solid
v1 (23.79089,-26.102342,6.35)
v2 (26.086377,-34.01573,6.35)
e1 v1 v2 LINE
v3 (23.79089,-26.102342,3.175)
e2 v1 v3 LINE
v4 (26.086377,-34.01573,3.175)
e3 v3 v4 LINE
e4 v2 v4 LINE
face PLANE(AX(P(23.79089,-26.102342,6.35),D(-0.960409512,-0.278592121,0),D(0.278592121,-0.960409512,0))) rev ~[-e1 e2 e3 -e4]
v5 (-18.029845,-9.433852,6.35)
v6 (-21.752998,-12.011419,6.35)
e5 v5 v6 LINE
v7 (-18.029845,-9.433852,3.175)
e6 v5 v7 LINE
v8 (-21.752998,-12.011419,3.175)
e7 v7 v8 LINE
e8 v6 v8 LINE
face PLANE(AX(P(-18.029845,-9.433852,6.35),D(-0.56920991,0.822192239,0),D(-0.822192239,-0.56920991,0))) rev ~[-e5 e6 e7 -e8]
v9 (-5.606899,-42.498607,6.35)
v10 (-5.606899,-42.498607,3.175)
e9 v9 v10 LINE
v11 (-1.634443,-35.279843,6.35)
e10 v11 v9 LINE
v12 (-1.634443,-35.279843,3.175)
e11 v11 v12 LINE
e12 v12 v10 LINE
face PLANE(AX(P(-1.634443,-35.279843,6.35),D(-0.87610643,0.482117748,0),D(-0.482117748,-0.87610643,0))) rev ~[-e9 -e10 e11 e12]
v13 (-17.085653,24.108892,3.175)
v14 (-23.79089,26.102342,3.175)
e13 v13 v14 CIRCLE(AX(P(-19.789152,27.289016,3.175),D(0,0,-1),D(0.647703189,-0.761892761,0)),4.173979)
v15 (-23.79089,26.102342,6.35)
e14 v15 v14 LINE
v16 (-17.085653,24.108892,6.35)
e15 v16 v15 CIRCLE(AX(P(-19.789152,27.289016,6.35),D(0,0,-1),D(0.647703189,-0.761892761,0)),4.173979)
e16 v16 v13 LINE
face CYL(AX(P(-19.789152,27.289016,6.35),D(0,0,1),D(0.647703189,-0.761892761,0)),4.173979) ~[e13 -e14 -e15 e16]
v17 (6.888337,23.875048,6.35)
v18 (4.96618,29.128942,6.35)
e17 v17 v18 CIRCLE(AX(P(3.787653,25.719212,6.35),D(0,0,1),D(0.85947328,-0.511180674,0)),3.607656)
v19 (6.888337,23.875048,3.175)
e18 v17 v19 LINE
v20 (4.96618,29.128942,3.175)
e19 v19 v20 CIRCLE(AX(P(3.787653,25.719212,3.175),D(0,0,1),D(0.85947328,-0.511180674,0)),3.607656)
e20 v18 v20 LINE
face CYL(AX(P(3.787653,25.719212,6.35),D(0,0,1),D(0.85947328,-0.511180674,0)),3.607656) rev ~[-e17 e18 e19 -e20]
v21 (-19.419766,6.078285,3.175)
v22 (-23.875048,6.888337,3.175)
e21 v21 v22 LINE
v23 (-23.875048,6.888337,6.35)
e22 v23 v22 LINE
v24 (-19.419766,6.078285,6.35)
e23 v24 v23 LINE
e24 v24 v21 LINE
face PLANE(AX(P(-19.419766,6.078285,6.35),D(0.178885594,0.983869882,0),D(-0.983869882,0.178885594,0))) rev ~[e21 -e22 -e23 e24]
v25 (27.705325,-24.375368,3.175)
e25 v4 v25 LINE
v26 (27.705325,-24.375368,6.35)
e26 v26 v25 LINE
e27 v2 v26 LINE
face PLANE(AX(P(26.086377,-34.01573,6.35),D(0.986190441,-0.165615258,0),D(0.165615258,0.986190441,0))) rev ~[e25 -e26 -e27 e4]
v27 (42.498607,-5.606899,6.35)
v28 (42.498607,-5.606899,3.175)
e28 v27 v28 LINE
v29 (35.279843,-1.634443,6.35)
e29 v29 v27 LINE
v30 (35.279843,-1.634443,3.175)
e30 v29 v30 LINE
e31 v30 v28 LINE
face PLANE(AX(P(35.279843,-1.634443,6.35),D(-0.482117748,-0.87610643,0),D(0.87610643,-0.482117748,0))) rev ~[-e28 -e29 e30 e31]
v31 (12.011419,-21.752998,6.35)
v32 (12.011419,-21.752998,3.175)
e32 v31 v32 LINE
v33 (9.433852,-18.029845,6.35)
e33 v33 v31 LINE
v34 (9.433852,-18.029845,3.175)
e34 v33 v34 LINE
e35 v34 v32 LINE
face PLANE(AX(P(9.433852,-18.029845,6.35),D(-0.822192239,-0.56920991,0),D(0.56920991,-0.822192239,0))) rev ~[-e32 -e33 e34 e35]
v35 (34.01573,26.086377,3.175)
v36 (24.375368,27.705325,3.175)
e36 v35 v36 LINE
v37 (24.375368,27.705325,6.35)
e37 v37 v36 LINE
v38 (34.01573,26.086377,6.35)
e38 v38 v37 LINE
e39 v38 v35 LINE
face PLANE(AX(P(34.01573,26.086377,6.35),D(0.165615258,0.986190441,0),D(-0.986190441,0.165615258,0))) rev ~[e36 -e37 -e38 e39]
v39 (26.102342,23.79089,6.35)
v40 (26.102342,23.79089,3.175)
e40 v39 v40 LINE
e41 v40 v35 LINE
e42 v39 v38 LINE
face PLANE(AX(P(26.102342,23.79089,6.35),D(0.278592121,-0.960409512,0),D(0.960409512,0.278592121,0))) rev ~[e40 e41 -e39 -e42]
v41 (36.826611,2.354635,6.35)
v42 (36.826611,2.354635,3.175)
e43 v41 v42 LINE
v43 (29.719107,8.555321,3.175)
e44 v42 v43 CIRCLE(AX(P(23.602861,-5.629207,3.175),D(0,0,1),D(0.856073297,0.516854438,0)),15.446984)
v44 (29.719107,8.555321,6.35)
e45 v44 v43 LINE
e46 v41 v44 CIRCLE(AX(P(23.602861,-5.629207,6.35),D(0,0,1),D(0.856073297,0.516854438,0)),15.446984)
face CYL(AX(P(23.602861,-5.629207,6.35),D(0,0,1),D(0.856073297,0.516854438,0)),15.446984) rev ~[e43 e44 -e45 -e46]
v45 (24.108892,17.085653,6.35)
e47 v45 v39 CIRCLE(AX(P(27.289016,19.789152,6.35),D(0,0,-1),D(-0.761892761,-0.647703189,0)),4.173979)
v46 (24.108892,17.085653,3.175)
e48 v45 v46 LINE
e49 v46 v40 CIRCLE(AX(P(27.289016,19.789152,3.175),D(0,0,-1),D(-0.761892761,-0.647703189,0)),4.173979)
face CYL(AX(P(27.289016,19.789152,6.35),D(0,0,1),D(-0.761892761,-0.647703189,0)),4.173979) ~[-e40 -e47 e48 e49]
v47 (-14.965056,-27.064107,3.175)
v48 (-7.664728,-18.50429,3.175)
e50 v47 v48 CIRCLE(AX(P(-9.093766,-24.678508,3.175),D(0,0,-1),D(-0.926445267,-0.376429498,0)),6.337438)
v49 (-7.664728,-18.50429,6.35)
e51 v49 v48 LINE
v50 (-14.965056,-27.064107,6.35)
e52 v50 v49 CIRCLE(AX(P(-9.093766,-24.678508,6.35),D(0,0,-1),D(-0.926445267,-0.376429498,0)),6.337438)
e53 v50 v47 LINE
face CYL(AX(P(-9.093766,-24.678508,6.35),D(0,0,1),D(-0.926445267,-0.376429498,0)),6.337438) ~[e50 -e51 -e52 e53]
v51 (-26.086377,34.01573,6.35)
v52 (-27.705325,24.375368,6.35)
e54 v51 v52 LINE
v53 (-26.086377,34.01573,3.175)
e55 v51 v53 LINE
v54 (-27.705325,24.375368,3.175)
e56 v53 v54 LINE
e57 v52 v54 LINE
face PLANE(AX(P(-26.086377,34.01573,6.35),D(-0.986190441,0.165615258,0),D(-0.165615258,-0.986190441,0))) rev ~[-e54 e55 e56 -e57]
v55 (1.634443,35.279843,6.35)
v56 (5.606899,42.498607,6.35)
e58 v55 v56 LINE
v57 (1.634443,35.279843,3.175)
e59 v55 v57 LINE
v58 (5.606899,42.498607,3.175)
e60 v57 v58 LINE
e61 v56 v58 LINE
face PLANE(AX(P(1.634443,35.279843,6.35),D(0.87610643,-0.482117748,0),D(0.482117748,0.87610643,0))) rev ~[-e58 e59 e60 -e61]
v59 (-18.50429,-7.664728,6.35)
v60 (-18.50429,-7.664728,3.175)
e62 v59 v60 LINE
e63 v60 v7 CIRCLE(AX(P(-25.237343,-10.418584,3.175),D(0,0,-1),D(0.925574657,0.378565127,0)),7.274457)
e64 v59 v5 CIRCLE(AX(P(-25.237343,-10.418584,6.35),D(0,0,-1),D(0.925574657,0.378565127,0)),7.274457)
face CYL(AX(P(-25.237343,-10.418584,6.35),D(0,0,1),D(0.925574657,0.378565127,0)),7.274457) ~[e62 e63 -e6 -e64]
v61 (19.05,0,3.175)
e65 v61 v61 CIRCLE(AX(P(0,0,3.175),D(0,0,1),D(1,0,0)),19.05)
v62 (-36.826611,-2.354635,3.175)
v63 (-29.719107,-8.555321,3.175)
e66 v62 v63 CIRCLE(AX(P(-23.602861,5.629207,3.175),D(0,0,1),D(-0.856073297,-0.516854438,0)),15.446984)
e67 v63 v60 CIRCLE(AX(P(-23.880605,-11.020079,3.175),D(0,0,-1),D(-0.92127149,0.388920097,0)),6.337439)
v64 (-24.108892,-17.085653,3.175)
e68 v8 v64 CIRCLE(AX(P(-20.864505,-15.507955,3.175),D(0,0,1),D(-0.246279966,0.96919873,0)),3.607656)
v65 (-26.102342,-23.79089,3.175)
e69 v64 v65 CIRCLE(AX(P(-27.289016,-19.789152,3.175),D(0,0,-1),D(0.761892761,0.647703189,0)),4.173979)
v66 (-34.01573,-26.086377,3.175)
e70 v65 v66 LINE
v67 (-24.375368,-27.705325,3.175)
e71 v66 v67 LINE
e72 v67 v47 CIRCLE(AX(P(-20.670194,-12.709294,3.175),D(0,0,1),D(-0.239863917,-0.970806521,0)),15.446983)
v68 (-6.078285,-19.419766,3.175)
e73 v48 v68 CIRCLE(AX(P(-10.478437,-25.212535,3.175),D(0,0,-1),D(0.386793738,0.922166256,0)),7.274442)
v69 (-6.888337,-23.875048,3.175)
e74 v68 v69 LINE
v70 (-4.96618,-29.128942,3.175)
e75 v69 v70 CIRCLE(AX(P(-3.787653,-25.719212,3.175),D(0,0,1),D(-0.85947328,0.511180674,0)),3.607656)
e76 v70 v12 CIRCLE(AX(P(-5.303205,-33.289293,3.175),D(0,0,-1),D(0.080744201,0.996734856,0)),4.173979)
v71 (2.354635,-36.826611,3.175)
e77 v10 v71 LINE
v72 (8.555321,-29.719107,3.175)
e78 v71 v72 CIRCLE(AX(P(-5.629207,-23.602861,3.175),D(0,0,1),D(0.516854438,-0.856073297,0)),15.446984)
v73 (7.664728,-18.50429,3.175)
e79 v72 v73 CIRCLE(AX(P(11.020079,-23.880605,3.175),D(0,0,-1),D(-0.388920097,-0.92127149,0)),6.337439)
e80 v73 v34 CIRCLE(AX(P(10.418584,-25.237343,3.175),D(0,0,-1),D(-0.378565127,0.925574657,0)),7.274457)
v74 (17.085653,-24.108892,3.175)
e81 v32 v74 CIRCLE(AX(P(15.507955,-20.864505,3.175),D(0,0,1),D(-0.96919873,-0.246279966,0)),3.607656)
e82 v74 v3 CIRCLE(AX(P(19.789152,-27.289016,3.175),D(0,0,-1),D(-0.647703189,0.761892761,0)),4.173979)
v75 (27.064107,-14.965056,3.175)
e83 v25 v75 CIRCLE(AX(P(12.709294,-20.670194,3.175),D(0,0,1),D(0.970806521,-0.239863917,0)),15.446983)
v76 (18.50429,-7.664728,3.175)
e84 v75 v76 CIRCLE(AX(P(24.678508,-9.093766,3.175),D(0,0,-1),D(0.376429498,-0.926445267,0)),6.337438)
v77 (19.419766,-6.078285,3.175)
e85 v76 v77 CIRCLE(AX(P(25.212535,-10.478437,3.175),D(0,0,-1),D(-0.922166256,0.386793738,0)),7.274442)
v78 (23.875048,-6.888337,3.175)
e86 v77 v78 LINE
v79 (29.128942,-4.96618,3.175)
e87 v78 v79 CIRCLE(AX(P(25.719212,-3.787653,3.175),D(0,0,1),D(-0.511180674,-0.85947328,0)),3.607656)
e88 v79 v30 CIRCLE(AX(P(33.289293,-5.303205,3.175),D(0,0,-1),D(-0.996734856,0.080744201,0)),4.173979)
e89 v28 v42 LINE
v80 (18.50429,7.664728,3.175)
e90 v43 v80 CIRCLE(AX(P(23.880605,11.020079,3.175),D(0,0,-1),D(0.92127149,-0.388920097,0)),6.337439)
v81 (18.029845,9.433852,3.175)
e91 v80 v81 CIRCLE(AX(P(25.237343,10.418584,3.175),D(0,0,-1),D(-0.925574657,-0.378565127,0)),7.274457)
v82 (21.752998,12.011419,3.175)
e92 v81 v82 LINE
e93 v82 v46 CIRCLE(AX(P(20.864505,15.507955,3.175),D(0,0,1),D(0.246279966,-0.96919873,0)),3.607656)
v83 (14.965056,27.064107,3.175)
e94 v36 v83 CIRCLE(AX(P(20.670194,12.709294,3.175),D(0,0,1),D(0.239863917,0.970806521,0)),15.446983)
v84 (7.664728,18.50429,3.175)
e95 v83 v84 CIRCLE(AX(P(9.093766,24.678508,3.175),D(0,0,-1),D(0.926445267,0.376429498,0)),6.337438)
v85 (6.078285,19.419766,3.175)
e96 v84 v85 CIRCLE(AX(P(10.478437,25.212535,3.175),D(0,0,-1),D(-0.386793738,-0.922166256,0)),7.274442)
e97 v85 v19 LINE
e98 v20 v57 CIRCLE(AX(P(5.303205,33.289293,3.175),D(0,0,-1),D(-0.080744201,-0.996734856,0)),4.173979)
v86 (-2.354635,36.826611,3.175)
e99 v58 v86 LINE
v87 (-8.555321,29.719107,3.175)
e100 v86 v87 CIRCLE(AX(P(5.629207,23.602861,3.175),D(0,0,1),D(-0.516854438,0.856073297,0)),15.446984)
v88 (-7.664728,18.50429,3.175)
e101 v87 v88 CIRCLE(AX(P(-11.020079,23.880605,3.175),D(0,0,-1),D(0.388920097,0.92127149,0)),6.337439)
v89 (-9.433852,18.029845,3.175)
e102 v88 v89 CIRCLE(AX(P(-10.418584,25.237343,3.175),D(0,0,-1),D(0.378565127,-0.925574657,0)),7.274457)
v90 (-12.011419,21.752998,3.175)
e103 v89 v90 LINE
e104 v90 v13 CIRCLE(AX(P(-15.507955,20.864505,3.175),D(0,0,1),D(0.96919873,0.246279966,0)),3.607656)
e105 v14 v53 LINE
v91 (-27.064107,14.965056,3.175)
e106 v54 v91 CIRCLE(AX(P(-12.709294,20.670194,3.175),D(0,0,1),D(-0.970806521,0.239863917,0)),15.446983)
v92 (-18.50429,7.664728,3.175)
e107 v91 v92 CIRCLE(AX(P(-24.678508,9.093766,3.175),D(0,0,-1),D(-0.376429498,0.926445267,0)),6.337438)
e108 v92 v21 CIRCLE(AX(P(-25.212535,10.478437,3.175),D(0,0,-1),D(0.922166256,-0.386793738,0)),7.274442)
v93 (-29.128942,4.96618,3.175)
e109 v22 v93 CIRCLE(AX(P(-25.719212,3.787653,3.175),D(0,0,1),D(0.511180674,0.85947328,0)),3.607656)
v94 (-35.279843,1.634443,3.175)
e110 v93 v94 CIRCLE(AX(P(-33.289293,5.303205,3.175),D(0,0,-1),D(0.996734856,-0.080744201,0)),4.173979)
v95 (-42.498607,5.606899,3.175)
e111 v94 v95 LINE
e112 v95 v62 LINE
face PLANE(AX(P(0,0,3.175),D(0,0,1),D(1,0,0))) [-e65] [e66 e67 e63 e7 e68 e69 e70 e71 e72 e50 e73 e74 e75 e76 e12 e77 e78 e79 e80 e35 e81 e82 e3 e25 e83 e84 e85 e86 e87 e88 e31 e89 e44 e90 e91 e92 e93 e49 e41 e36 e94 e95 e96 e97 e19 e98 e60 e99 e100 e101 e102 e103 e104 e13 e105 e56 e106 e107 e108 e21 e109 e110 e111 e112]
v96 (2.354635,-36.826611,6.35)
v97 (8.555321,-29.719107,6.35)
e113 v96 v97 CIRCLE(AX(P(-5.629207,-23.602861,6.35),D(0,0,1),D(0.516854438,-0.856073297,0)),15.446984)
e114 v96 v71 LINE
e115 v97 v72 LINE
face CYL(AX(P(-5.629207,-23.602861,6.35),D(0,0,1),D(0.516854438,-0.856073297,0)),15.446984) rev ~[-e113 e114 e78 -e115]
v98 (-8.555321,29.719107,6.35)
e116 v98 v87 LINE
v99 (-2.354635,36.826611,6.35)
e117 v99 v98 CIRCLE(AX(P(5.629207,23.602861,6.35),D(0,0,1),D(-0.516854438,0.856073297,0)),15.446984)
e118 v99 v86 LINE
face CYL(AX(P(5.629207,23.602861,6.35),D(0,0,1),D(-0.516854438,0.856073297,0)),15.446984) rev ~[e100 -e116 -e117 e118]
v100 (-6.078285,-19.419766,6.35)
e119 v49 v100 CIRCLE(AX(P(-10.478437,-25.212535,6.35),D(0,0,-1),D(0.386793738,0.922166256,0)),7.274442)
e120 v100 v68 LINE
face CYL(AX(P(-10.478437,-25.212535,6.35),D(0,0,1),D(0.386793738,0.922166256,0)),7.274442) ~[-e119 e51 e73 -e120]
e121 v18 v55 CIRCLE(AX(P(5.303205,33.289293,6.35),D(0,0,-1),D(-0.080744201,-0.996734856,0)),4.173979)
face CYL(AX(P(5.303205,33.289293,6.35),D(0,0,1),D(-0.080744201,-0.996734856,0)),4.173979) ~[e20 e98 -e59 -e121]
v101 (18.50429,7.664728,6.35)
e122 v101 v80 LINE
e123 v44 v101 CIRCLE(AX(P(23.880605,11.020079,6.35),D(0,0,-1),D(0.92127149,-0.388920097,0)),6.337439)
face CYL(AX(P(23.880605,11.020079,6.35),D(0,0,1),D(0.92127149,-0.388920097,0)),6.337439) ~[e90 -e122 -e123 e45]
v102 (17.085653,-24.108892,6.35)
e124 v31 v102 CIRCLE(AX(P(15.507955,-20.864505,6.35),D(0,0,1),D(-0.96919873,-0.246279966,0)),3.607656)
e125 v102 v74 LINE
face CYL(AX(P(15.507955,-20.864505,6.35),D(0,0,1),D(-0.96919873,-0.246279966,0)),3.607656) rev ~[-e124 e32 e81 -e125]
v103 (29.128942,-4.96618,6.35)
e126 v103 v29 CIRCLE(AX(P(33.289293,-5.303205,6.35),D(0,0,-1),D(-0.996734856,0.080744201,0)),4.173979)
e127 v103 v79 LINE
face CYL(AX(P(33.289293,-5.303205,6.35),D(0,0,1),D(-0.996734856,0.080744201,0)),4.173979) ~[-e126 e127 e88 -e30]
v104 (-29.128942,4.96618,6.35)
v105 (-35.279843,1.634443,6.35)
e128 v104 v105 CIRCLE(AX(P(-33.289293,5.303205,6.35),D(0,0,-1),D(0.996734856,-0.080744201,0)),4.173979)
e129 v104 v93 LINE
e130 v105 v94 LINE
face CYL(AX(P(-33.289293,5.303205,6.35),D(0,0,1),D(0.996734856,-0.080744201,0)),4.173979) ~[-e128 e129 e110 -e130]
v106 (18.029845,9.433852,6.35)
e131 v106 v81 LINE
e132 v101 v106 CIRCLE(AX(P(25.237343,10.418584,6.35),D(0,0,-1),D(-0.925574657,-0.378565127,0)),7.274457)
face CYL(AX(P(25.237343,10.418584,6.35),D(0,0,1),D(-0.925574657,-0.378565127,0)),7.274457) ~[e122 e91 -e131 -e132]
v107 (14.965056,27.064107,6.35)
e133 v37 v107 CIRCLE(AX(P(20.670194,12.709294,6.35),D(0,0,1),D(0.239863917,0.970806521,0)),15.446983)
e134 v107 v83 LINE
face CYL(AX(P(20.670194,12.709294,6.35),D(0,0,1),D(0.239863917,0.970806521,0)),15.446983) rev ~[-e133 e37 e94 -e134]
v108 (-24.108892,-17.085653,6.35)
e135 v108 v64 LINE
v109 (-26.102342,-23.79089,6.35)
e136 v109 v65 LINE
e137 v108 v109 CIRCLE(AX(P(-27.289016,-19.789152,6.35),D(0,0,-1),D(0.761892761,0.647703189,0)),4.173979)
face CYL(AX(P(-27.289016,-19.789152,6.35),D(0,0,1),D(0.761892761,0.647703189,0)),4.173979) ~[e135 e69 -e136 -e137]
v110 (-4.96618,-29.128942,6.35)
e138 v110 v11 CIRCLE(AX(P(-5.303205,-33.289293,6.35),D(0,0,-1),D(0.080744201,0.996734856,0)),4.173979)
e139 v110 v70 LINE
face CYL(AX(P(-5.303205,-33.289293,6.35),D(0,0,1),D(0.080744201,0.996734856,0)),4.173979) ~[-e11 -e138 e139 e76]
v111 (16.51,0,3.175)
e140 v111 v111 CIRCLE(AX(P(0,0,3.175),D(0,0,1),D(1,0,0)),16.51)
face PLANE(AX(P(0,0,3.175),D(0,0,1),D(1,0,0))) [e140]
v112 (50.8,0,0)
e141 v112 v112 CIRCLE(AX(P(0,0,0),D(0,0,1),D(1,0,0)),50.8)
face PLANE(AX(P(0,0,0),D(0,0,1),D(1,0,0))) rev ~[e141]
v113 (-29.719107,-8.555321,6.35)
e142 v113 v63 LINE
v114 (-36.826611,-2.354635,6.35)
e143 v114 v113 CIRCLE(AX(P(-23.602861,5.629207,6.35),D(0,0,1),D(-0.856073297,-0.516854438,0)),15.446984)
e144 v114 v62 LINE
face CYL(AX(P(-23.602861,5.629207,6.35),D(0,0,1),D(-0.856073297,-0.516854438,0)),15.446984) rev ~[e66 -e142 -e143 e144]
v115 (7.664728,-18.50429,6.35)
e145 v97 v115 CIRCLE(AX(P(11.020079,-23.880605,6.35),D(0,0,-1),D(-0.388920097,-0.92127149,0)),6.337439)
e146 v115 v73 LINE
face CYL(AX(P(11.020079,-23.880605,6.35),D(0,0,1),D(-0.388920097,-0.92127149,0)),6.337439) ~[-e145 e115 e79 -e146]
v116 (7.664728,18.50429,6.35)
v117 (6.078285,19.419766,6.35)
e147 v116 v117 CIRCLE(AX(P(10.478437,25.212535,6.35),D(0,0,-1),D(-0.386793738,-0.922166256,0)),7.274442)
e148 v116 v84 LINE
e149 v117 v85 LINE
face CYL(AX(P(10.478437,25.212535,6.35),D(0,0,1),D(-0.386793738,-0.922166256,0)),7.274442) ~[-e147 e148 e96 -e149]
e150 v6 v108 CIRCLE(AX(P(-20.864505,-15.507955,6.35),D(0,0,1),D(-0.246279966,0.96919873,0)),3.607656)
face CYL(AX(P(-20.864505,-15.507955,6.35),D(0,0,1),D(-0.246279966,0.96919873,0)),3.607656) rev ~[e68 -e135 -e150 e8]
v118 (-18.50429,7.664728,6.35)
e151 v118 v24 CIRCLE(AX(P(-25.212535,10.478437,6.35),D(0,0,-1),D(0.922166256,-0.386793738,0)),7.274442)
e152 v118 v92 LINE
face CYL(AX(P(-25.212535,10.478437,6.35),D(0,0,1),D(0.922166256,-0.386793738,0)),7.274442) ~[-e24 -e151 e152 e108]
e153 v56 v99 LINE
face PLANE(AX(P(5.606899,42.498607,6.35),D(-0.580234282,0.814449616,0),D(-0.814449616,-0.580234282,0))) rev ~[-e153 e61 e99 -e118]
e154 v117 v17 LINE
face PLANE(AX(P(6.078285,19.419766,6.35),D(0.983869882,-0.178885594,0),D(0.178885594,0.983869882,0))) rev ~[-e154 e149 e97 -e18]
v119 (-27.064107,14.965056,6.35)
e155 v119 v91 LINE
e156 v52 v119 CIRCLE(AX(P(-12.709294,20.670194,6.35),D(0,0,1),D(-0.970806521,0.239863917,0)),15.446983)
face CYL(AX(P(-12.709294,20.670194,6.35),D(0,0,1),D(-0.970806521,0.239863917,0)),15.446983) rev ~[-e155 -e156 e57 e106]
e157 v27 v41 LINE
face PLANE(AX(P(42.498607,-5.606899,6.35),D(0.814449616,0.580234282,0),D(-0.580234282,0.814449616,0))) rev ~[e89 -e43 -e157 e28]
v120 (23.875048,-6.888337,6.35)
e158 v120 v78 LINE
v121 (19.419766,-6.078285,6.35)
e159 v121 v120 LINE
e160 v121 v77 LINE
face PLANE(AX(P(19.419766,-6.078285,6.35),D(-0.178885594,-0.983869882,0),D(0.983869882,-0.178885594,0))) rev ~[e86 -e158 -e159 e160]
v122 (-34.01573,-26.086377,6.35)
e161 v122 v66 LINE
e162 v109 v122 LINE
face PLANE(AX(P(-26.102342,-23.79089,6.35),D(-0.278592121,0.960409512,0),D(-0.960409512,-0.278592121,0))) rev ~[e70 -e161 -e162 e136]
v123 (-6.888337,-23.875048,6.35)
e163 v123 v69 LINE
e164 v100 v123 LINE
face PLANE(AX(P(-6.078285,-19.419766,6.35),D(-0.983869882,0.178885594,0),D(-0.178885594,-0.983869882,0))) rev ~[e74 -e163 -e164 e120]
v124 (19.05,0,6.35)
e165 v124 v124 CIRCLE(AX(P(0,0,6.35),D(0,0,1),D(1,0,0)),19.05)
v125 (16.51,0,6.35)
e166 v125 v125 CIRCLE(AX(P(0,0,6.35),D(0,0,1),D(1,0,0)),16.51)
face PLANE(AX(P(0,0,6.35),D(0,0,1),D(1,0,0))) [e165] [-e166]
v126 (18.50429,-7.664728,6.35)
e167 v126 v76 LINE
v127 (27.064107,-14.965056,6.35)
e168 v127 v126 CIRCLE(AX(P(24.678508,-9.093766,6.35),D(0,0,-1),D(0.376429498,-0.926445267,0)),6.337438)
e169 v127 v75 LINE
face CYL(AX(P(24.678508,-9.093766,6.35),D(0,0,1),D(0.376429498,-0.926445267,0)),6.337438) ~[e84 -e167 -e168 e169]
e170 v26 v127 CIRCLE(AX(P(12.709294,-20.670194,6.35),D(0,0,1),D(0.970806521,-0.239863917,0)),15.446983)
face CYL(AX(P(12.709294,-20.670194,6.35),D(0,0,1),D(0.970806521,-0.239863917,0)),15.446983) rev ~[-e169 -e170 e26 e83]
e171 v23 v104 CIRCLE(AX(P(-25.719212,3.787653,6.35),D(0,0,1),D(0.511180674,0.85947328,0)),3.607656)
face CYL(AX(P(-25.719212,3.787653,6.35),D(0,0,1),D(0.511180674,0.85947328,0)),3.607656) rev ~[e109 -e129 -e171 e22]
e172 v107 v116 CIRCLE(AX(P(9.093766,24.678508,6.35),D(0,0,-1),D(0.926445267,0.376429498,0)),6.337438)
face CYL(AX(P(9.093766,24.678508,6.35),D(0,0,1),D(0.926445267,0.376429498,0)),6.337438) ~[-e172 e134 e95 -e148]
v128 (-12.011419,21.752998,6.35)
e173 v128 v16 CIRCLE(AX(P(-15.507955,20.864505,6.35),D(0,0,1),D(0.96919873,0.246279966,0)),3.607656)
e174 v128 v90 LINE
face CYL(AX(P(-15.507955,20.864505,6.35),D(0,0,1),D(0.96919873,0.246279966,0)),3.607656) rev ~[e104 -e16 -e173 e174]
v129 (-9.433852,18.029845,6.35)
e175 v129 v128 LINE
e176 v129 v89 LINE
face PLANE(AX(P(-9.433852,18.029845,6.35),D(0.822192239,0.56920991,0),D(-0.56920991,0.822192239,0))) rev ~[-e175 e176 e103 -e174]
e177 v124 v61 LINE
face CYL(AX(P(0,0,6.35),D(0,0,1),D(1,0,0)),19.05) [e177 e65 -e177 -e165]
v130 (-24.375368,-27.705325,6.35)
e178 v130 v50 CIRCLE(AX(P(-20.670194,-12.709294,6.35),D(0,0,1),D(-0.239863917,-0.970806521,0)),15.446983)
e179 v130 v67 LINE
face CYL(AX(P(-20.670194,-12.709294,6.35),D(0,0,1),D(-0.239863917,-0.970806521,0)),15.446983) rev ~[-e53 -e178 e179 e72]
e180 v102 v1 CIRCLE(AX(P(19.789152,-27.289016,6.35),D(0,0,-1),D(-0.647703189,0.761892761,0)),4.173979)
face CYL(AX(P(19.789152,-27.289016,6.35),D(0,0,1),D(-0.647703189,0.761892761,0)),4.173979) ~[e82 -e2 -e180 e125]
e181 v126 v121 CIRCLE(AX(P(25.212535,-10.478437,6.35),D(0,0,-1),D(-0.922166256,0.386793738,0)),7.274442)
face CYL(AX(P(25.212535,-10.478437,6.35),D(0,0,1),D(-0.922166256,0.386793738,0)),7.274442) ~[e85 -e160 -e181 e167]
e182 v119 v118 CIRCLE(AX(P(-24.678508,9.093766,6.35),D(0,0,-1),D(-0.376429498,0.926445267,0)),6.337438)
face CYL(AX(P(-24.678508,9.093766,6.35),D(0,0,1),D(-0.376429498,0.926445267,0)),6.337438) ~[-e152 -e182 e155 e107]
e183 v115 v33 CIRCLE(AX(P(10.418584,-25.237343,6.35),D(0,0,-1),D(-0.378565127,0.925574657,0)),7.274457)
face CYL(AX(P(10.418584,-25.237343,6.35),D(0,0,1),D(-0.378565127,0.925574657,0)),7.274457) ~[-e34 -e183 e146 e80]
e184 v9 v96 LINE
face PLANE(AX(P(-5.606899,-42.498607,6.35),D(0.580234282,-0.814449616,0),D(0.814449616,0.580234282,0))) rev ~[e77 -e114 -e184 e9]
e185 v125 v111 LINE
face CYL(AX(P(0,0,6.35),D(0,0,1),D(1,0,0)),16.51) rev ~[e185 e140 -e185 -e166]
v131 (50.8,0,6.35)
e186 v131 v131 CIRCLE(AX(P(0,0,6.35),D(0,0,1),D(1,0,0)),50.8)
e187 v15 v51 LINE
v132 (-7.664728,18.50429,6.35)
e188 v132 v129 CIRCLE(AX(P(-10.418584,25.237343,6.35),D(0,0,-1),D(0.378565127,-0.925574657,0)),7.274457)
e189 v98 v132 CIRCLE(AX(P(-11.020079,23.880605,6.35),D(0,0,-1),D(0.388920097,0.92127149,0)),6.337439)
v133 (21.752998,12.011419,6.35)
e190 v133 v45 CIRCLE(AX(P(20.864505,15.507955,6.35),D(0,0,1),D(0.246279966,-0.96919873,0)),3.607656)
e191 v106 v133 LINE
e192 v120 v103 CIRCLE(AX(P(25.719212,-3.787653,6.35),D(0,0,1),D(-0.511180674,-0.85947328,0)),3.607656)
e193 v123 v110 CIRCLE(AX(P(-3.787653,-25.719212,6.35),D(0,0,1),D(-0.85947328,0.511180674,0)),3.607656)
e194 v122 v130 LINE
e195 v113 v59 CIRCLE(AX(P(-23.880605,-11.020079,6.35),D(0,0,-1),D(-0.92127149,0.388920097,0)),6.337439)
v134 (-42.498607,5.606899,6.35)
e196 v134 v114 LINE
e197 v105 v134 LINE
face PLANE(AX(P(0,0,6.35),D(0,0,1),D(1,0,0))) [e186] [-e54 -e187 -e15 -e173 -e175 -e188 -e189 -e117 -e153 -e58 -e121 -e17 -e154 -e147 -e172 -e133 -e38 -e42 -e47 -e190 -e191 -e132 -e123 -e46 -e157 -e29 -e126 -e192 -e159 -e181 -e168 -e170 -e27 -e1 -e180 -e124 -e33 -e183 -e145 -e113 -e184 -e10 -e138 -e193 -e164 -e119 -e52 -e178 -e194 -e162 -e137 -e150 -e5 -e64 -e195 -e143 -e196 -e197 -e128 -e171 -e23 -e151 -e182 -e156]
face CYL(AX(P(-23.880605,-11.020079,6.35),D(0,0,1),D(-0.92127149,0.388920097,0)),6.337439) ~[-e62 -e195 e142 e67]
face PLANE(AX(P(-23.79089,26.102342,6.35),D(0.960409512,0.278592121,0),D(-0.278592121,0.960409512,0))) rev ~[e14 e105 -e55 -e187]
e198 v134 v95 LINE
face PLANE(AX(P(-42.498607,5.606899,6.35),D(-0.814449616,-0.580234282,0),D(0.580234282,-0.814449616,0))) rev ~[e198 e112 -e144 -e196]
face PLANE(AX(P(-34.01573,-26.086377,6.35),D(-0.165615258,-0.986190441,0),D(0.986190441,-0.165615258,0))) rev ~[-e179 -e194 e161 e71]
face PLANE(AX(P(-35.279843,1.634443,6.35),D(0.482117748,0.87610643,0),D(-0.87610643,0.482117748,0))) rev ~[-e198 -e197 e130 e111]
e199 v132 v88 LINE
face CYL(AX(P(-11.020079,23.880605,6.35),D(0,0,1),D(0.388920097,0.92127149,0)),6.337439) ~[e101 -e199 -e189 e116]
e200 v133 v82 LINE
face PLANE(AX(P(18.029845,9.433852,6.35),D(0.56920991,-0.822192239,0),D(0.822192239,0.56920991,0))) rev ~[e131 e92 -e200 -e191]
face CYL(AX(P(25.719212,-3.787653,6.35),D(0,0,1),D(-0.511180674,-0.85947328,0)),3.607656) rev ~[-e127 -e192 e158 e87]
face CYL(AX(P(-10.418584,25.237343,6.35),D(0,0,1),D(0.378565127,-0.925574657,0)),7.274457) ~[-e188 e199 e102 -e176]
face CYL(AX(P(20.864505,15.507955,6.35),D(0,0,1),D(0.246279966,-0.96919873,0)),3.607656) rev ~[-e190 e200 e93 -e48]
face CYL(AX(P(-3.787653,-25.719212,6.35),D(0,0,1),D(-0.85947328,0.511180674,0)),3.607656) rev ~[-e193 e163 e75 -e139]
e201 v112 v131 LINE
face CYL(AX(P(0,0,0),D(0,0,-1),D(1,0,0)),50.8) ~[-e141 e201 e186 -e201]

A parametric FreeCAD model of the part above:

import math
import FreeCAD as App
import Part
import Sketcher
Q = App.Units.Quantity

doc = App.newDocument("Part")
body = doc.addObject("PartDesign::Body", "Body")

sketch1 = body.newObject("Sketcher::SketchObject", "Sketch")
sketch1.AttachmentSupport = (doc.getObject("XY_Plane"), [""])
sketch1.MapMode = "FlatFace"
sketch1.addGeometry(Part.Circle(App.Vector(0, 0, 0), App.Vector(0, 0, 1), 50.8), False)
sketch1.addConstraint(Sketcher.Constraint("Coincident", 0, 3, -1, 1))
sketch1.addConstraint(Sketcher.Constraint("Diameter", 0, Q("4 in")))
pad1 = body.newObject("PartDesign::Pad", "Pad")
pad1.Profile = sketch1
pad1.Length = Q("0.25 in")

sketch2 = body.newObject("Sketcher::SketchObject", "Sketch001")
sketch2.AttachmentSupport = (doc.getObject("XY_Plane"), [""])
sketch2.MapMode = "FlatFace"
sketch2.AttachmentOffset = App.Placement(App.Vector(0, 0, 0.25 * 25.4), App.Rotation())
sketch2.addGeometry(Part.ArcOfCircle(Part.Circle(App.Vector(-24.678508, 9.093766, 0), App.Vector(0, 0, 1), 6.337438), math.radians(-13.031781), math.radians(112.112692)), False)
sketch2.addGeometry(Part.ArcOfCircle(Part.Circle(App.Vector(-25.212535, 10.478437, 0), App.Vector(0, 0, 1), 7.274442), math.radians(-37.220081), math.radians(-22.755143)), False)
sketch2.addGeometry(Part.LineSegment(App.Vector(-19.419766, 6.078285, 0), App.Vector(-23.875048, 6.888337, 0)), False)
sketch2.addGeometry(Part.ArcOfCircle(Part.Circle(App.Vector(-25.719212, 3.787653, 0), App.Vector(0, 0, 1), 3.607656), math.radians(59.257494), math.radians(160.932981)), False)
sketch2.addGeometry(Part.ArcOfCircle(Part.Circle(App.Vector(-33.289293, 5.303205, 0), App.Vector(0, 0, 1), 4.173979), math.radians(-118.482814), math.radians(-4.631344)), False)
sketch2.addGeometry(Part.LineSegment(App.Vector(-35.279843, 1.634443, 0), App.Vector(-42.498607, 5.606899, 0)), False)
sketch2.addGeometry(Part.LineSegment(App.Vector(-42.498607, 5.606899, 0), App.Vector(-36.826611, -2.354635, 0)), False)
sketch2.addGeometry(Part.ArcOfCircle(Part.Circle(App.Vector(-23.602861, 5.629207, 0), App.Vector(0, 0, 1), 15.446984), math.radians(-148.878511), math.radians(-113.325289)), False)
sketch2.addGeometry(Part.ArcOfCircle(Part.Circle(App.Vector(-23.880605, -11.020079, 0), App.Vector(0, 0, 1), 6.337439), math.radians(31.968229), math.radians(157.112679)), False)
sketch2.addGeometry(Part.ArcOfCircle(Part.Circle(App.Vector(-25.237343, -10.418584, 0), App.Vector(0, 0, 1), 7.274457), math.radians(7.779924), math.radians(22.244832)), False)
sketch2.addGeometry(Part.LineSegment(App.Vector(-18.029845, -9.433852, 0), App.Vector(-21.752998, -12.011419, 0)), False)
sketch2.addGeometry(Part.ArcOfCircle(Part.Circle(App.Vector(-20.864505, -15.507955, 0), App.Vector(0, 0, 1), 3.607656), math.radians(104.257488), math.radians(205.932981)), False)
sketch2.addGeometry(Part.ArcOfCircle(Part.Circle(App.Vector(-27.289016, -19.789152, 0), App.Vector(0, 0, 1), 4.173979), math.radians(-73.482816), math.radians(40.368655)), False)
sketch2.addGeometry(Part.LineSegment(App.Vector(-26.102342, -23.79089, 0), App.Vector(-34.01573, -26.086377, 0)), False)
sketch2.addGeometry(Part.LineSegment(App.Vector(-34.01573, -26.086377, 0), App.Vector(-24.375368, -27.705325, 0)), False)
sketch2.addGeometry(Part.ArcOfCircle(Part.Circle(App.Vector(-20.670194, -12.709294, 0), App.Vector(0, 0, 1), 15.446983), math.radians(-103.878509), math.radians(-68.325282)), False)
sketch2.addGeometry(Part.ArcOfCircle(Part.Circle(App.Vector(-9.093766, -24.678508, 0), App.Vector(0, 0, 1), 6.337438), math.radians(76.968219), math.radians(202.112692)), False)
sketch2.addGeometry(Part.ArcOfCircle(Part.Circle(App.Vector(-10.478437, -25.212535, 0), App.Vector(0, 0, 1), 7.274442), math.radians(52.779919), math.radians(67.244857)), False)
sketch2.addGeometry(Part.LineSegment(App.Vector(-6.078285, -19.419766, 0), App.Vector(-6.888337, -23.875048, 0)), False)
sketch2.addGeometry(Part.ArcOfCircle(Part.Circle(App.Vector(-3.787653, -25.719212, 0), App.Vector(0, 0, 1), 3.607656), math.radians(149.257494), math.radians(250.932981)), False)
sketch2.addGeometry(Part.ArcOfCircle(Part.Circle(App.Vector(-5.303205, -33.289293, 0), App.Vector(0, 0, 1), 4.173979), math.radians(-28.482814), math.radians(85.368656)), False)
sketch2.addGeometry(Part.LineSegment(App.Vector(-1.634443, -35.279843, 0), App.Vector(-5.606899, -42.498607, 0)), False)
sketch2.addGeometry(Part.LineSegment(App.Vector(-5.606899, -42.498607, 0), App.Vector(2.354635, -36.826611, 0)), False)
sketch2.addGeometry(Part.ArcOfCircle(Part.Circle(App.Vector(-5.629207, -23.602861, 0), App.Vector(0, 0, 1), 15.446984), math.radians(-58.878511), math.radians(-23.325289)), False)
sketch2.addGeometry(Part.ArcOfCircle(Part.Circle(App.Vector(11.020079, -23.880605, 0), App.Vector(0, 0, 1), 6.337439), math.radians(121.968229), math.radians(247.112679)), False)
sketch2.addGeometry(Part.ArcOfCircle(Part.Circle(App.Vector(10.418584, -25.237343, 0), App.Vector(0, 0, 1), 7.274457), math.radians(97.779924), math.radians(112.244832)), False)
sketch2.addGeometry(Part.LineSegment(App.Vector(9.433852, -18.029845, 0), App.Vector(12.011419, -21.752998, 0)), False)
sketch2.addGeometry(Part.ArcOfCircle(Part.Circle(App.Vector(15.507955, -20.864505, 0), App.Vector(0, 0, 1), 3.607656), math.radians(-165.742512), math.radians(-64.067019)), False)
sketch2.addGeometry(Part.ArcOfCircle(Part.Circle(App.Vector(19.789152, -27.289016, 0), App.Vector(0, 0, 1), 4.173979), math.radians(16.517184), math.radians(130.368655)), False)
sketch2.addGeometry(Part.LineSegment(App.Vector(23.79089, -26.102342, 0), App.Vector(26.086377, -34.01573, 0)), False)
sketch2.addGeometry(Part.LineSegment(App.Vector(26.086377, -34.01573, 0), App.Vector(27.705325, -24.375368, 0)), False)
sketch2.addGeometry(Part.ArcOfCircle(Part.Circle(App.Vector(12.709294, -20.670194, 0), App.Vector(0, 0, 1), 15.446983), math.radians(-13.878509), math.radians(21.674718)), False)
sketch2.addGeometry(Part.ArcOfCircle(Part.Circle(App.Vector(24.678508, -9.093766, 0), App.Vector(0, 0, 1), 6.337438), math.radians(166.968219), math.radians(292.112692)), False)
sketch2.addGeometry(Part.ArcOfCircle(Part.Circle(App.Vector(25.212535, -10.478437, 0), App.Vector(0, 0, 1), 7.274442), math.radians(142.779919), math.radians(157.244857)), False)
sketch2.addGeometry(Part.LineSegment(App.Vector(19.419766, -6.078285, 0), App.Vector(23.875048, -6.888337, 0)), False)
sketch2.addGeometry(Part.ArcOfCircle(Part.Circle(App.Vector(25.719212, -3.787653, 0), App.Vector(0, 0, 1), 3.607656), math.radians(-120.742506), math.radians(-19.067019)), False)
sketch2.addGeometry(Part.ArcOfCircle(Part.Circle(App.Vector(33.289293, -5.303205, 0), App.Vector(0, 0, 1), 4.173979), math.radians(61.517186), math.radians(175.368656)), False)
sketch2.addGeometry(Part.LineSegment(App.Vector(35.279843, -1.634443, 0), App.Vector(42.498607, -5.606899, 0)), False)
sketch2.addGeometry(Part.LineSegment(App.Vector(42.498607, -5.606899, 0), App.Vector(36.826611, 2.354635, 0)), False)
sketch2.addGeometry(Part.ArcOfCircle(Part.Circle(App.Vector(23.602861, -5.629207, 0), App.Vector(0, 0, 1), 15.446984), math.radians(31.121489), math.radians(66.674711)), False)
sketch2.addGeometry(Part.ArcOfCircle(Part.Circle(App.Vector(23.880605, 11.020079, 0), App.Vector(0, 0, 1), 6.337439), math.radians(-148.031771), math.radians(-22.887321)), False)
sketch2.addGeometry(Part.ArcOfCircle(Part.Circle(App.Vector(25.237343, 10.418584, 0), App.Vector(0, 0, 1), 7.274457), math.radians(-172.220076), math.radians(-157.755168)), False)
sketch2.addGeometry(Part.LineSegment(App.Vector(18.029845, 9.433852, 0), App.Vector(21.752998, 12.011419, 0)), False)
sketch2.addGeometry(Part.ArcOfCircle(Part.Circle(App.Vector(20.864505, 15.507955, 0), App.Vector(0, 0, 1), 3.607656), math.radians(-75.742512), math.radians(25.932981)), False)
sketch2.addGeometry(Part.ArcOfCircle(Part.Circle(App.Vector(27.289016, 19.789152, 0), App.Vector(0, 0, 1), 4.173979), math.radians(106.517184), math.radians(220.368655)), False)
sketch2.addGeometry(Part.LineSegment(App.Vector(26.102342, 23.79089, 0), App.Vector(34.01573, 26.086377, 0)), False)
sketch2.addGeometry(Part.LineSegment(App.Vector(34.01573, 26.086377, 0), App.Vector(24.375368, 27.705325, 0)), False)
sketch2.addGeometry(Part.ArcOfCircle(Part.Circle(App.Vector(20.670194, 12.709294, 0), App.Vector(0, 0, 1), 15.446983), math.radians(76.121491), math.radians(111.674718)), False)
sketch2.addGeometry(Part.ArcOfCircle(Part.Circle(App.Vector(9.093766, 24.678508, 0), App.Vector(0, 0, 1), 6.337438), math.radians(-103.031781), math.radians(22.112692)), False)
sketch2.addGeometry(Part.ArcOfCircle(Part.Circle(App.Vector(10.478437, 25.212535, 0), App.Vector(0, 0, 1), 7.274442), math.radians(-127.220081), math.radians(-112.755143)), False)
sketch2.addGeometry(Part.LineSegment(App.Vector(6.078285, 19.419766, 0), App.Vector(6.888337, 23.875048, 0)), False)
sketch2.addGeometry(Part.ArcOfCircle(Part.Circle(App.Vector(3.787653, 25.719212, 0), App.Vector(0, 0, 1), 3.607656), math.radians(-30.742506), math.radians(70.932981)), False)
sketch2.addGeometry(Part.ArcOfCircle(Part.Circle(App.Vector(5.303205, 33.289293, 0), App.Vector(0, 0, 1), 4.173979), math.radians(151.517186), math.radians(265.368656)), False)
sketch2.addGeometry(Part.LineSegment(App.Vector(1.634443, 35.279843, 0), App.Vector(5.606899, 42.498607, 0)), False)
sketch2.addGeometry(Part.LineSegment(App.Vector(5.606899, 42.498607, 0), App.Vector(-2.354635, 36.826611, 0)), False)
sketch2.addGeometry(Part.ArcOfCircle(Part.Circle(App.Vector(5.629207, 23.602861, 0), App.Vector(0, 0, 1), 15.446984), math.radians(121.121489), math.radians(156.674711)), False)
sketch2.addGeometry(Part.ArcOfCircle(Part.Circle(App.Vector(-11.020079, 23.880605, 0), App.Vector(0, 0, 1), 6.337439), math.radians(-58.031771), math.radians(67.112679)), False)
sketch2.addGeometry(Part.ArcOfCircle(Part.Circle(App.Vector(-10.418584, 25.237343, 0), App.Vector(0, 0, 1), 7.274457), math.radians(-82.220076), math.radians(-67.755168)), False)
sketch2.addGeometry(Part.LineSegment(App.Vector(-9.433852, 18.029845, 0), App.Vector(-12.011419, 21.752998, 0)), False)
sketch2.addGeometry(Part.ArcOfCircle(Part.Circle(App.Vector(-15.507955, 20.864505, 0), App.Vector(0, 0, 1), 3.607656), math.radians(14.257488), math.radians(115.932981)), False)
sketch2.addGeometry(Part.ArcOfCircle(Part.Circle(App.Vector(-19.789152, 27.289016, 0), App.Vector(0, 0, 1), 4.173979), math.radians(-163.482816), math.radians(-49.631345)), False)
sketch2.addGeometry(Part.LineSegment(App.Vector(-23.79089, 26.102342, 0), App.Vector(-26.086377, 34.01573, 0)), False)
sketch2.addGeometry(Part.LineSegment(App.Vector(-26.086377, 34.01573, 0), App.Vector(-27.705325, 24.375368, 0)), False)
sketch2.addGeometry(Part.ArcOfCircle(Part.Circle(App.Vector(-12.709294, 20.670194, 0), App.Vector(0, 0, 1), 15.446983), math.radians(166.121491), math.radians(201.674718)), False)
sketch2.addGeometry(Part.Circle(App.Vector(0, 0, 0), App.Vector(0, 0, 1), 19.05), False)
sketch2.addGeometry(Part.Circle(App.Vector(0, 0, 0), App.Vector(0, 0, 1), 16.51), False)
sketch2.addConstraint(Sketcher.Constraint("Coincident", 0, 1, 1, 2))
sketch2.addConstraint(Sketcher.Constraint("Coincident", 1, 1, 2, 1))
sketch2.addConstraint(Sketcher.Constraint("Coincident", 2, 2, 3, 1))
sketch2.addConstraint(Sketcher.Constraint("Coincident", 3, 2, 4, 2))
sketch2.addConstraint(Sketcher.Constraint("Coincident", 4, 1, 5, 1))
sketch2.addConstraint(Sketcher.Constraint("Coincident", 5, 2, 6, 1))
sketch2.addConstraint(Sketcher.Constraint("Coincident", 6, 2, 7, 1))
sketch2.addConstraint(Sketcher.Constraint("Coincident", 7, 2, 8, 2))
sketch2.addConstraint(Sketcher.Constraint("Coincident", 8, 1, 9, 2))
sketch2.addConstraint(Sketcher.Constraint("Coincident", 9, 1, 10, 1))
sketch2.addConstraint(Sketcher.Constraint("Coincident", 10, 2, 11, 1))
sketch2.addConstraint(Sketcher.Constraint("Coincident", 11, 2, 12, 2))
sketch2.addConstraint(Sketcher.Constraint("Coincident", 12, 1, 13, 1))
sketch2.addConstraint(Sketcher.Constraint("Coincident", 13, 2, 14, 1))
sketch2.addConstraint(Sketcher.Constraint("Coincident", 14, 2, 15, 1))
sketch2.addConstraint(Sketcher.Constraint("Coincident", 15, 2, 16, 2))
sketch2.addConstraint(Sketcher.Constraint("Coincident", 16, 1, 17, 2))
sketch2.addConstraint(Sketcher.Constraint("Coincident", 17, 1, 18, 1))
sketch2.addConstraint(Sketcher.Constraint("Coincident", 18, 2, 19, 1))
sketch2.addConstraint(Sketcher.Constraint("Coincident", 19, 2, 20, 2))
sketch2.addConstraint(Sketcher.Constraint("Coincident", 20, 1, 21, 1))
sketch2.addConstraint(Sketcher.Constraint("Coincident", 21, 2, 22, 1))
sketch2.addConstraint(Sketcher.Constraint("Coincident", 22, 2, 23, 1))
sketch2.addConstraint(Sketcher.Constraint("Coincident", 23, 2, 24, 2))
sketch2.addConstraint(Sketcher.Constraint("Coincident", 24, 1, 25, 2))
sketch2.addConstraint(Sketcher.Constraint("Coincident", 25, 1, 26, 1))
sketch2.addConstraint(Sketcher.Constraint("Coincident", 26, 2, 27, 1))
sketch2.addConstraint(Sketcher.Constraint("Coincident", 27, 2, 28, 2))
sketch2.addConstraint(Sketcher.Constraint("Coincident", 28, 1, 29, 1))
sketch2.addConstraint(Sketcher.Constraint("Coincident", 29, 2, 30, 1))
sketch2.addConstraint(Sketcher.Constraint("Coincident", 30, 2, 31, 1))
sketch2.addConstraint(Sketcher.Constraint("Coincident", 31, 2, 32, 2))
sketch2.addConstraint(Sketcher.Constraint("Coincident", 32, 1, 33, 2))
sketch2.addConstraint(Sketcher.Constraint("Coincident", 33, 1, 34, 1))
sketch2.addConstraint(Sketcher.Constraint("Coincident", 34, 2, 35, 1))
sketch2.addConstraint(Sketcher.Constraint("Coincident", 35, 2, 36, 2))
sketch2.addConstraint(Sketcher.Constraint("Coincident", 36, 1, 37, 1))
sketch2.addConstraint(Sketcher.Constraint("Coincident", 37, 2, 38, 1))
sketch2.addConstraint(Sketcher.Constraint("Coincident", 38, 2, 39, 1))
sketch2.addConstraint(Sketcher.Constraint("Coincident", 39, 2, 40, 2))
sketch2.addConstraint(Sketcher.Constraint("Coincident", 40, 1, 41, 2))
sketch2.addConstraint(Sketcher.Constraint("Coincident", 41, 1, 42, 1))
sketch2.addConstraint(Sketcher.Constraint("Coincident", 42, 2, 43, 1))
sketch2.addConstraint(Sketcher.Constraint("Coincident", 43, 2, 44, 2))
sketch2.addConstraint(Sketcher.Constraint("Coincident", 44, 1, 45, 1))
sketch2.addConstraint(Sketcher.Constraint("Coincident", 45, 2, 46, 1))
sketch2.addConstraint(Sketcher.Constraint("Coincident", 46, 2, 47, 1))
sketch2.addConstraint(Sketcher.Constraint("Coincident", 47, 2, 48, 2))
sketch2.addConstraint(Sketcher.Constraint("Coincident", 48, 1, 49, 2))
sketch2.addConstraint(Sketcher.Constraint("Coincident", 49, 1, 50, 1))
sketch2.addConstraint(Sketcher.Constraint("Coincident", 50, 2, 51, 1))
sketch2.addConstraint(Sketcher.Constraint("Coincident", 51, 2, 52, 2))
sketch2.addConstraint(Sketcher.Constraint("Coincident", 52, 1, 53, 1))
sketch2.addConstraint(Sketcher.Constraint("Coincident", 53, 2, 54, 1))
sketch2.addConstraint(Sketcher.Constraint("Coincident", 54, 2, 55, 1))
sketch2.addConstraint(Sketcher.Constraint("Coincident", 55, 2, 56, 2))
sketch2.addConstraint(Sketcher.Constraint("Coincident", 56, 1, 57, 2))
sketch2.addConstraint(Sketcher.Constraint("Coincident", 57, 1, 58, 1))
sketch2.addConstraint(Sketcher.Constraint("Coincident", 58, 2, 59, 1))
sketch2.addConstraint(Sketcher.Constraint("Coincident", 59, 2, 60, 2))
sketch2.addConstraint(Sketcher.Constraint("Coincident", 60, 1, 61, 1))
sketch2.addConstraint(Sketcher.Constraint("Coincident", 61, 2, 62, 1))
sketch2.addConstraint(Sketcher.Constraint("Coincident", 62, 2, 63, 1))
sketch2.addConstraint(Sketcher.Constraint("Coincident", 63, 2, 0, 2))
sketch2.addConstraint(Sketcher.Constraint("Coincident", 64, 3, -1, 1))
sketch2.addConstraint(Sketcher.Constraint("Coincident", 65, 3, -1, 1))
sketch2.addConstraint(Sketcher.Constraint("Diameter", 64, Q("1.5 in")))
sketch2.addConstraint(Sketcher.Constraint("Diameter", 65, Q("1.3 in")))
sketch2.addConstraint(Sketcher.Constraint("Radius", 0, 6.337438))
sketch2.addConstraint(Sketcher.Constraint("Radius", 1, 7.274442))
sketch2.addConstraint(Sketcher.Constraint("Radius", 4, 4.173979))
sketch2.addConstraint(Sketcher.Constraint("Radius", 8, 6.337439))
sketch2.addConstraint(Sketcher.Constraint("Radius", 12, 4.173979))
sketch2.addConstraint(Sketcher.Constraint("Radius", 16, 6.337438))
sketch2.addConstraint(Sketcher.Constraint("Radius", 17, 7.274442))
sketch2.addConstraint(Sketcher.Constraint("Radius", 20, 4.173979))
sketch2.addConstraint(Sketcher.Constraint("Radius", 24, 6.337439))
sketch2.addConstraint(Sketcher.Constraint("Radius", 28, 4.173979))
sketch2.addConstraint(Sketcher.Constraint("Radius", 32, 6.337438))
sketch2.addConstraint(Sketcher.Constraint("Radius", 33, 7.274442))
sketch2.addConstraint(Sketcher.Constraint("Radius", 36, 4.173979))
sketch2.addConstraint(Sketcher.Constraint("Radius", 40, 6.337439))
sketch2.addConstraint(Sketcher.Constraint("Radius", 44, 4.173979))
sketch2.addConstraint(Sketcher.Constraint("Radius", 48, 6.337438))
sketch2.addConstraint(Sketcher.Constraint("Radius", 49, 7.274442))
sketch2.addConstraint(Sketcher.Constraint("Radius", 52, 4.173979))
sketch2.addConstraint(Sketcher.Constraint("Radius", 56, 6.337439))
sketch2.addConstraint(Sketcher.Constraint("Radius", 60, 4.173979))
sketch2.addConstraint(Sketcher.Constraint("Radius", 3, 3.607656))
sketch2.addConstraint(Sketcher.Constraint("Radius", 7, 15.446984))
sketch2.addConstraint(Sketcher.Constraint("Radius", 9, 7.274457))
sketch2.addConstraint(Sketcher.Constraint("Radius", 11, 3.607656))
sketch2.addConstraint(Sketcher.Constraint("Radius", 15, 15.446983))
sketch2.addConstraint(Sketcher.Constraint("Radius", 19, 3.607656))
sketch2.addConstraint(Sketcher.Constraint("Radius", 23, 15.446984))
sketch2.addConstraint(Sketcher.Constraint("Radius", 25, 7.274457))
sketch2.addConstraint(Sketcher.Constraint("Radius", 27, 3.607656))
sketch2.addConstraint(Sketcher.Constraint("Radius", 31, 15.446983))
sketch2.addConstraint(Sketcher.Constraint("Radius", 35, 3.607656))
sketch2.addConstraint(Sketcher.Constraint("Radius", 39, 15.446984))
sketch2.addConstraint(Sketcher.Constraint("Radius", 41, 7.274457))
sketch2.addConstraint(Sketcher.Constraint("Radius", 43, 3.607656))
sketch2.addConstraint(Sketcher.Constraint("Radius", 47, 15.446983))
sketch2.addConstraint(Sketcher.Constraint("Radius", 51, 3.607656))
sketch2.addConstraint(Sketcher.Constraint("Radius", 55, 15.446984))
sketch2.addConstraint(Sketcher.Constraint("Radius", 57, 7.274457))
sketch2.addConstraint(Sketcher.Constraint("Radius", 59, 3.607656))
sketch2.addConstraint(Sketcher.Constraint("Radius", 63, 15.446983))
sketch2.addConstraint(Sketcher.Constraint("DistanceY", -1, 1, 5, 2, 5.606899))
sketch2.addConstraint(Sketcher.Constraint("DistanceX", 10, 2, -1, 1, 21.752998))
sketch2.addConstraint(Sketcher.Constraint("DistanceX", 21, 2, -1, 1, 5.606899))
sketch2.addConstraint(Sketcher.Constraint("DistanceY", 26, 2, -1, 1, 21.752998))
sketch2.addConstraint(Sketcher.Constraint("DistanceY", 37, 2, -1, 1, 5.606899))
sketch2.addConstraint(Sketcher.Constraint("DistanceX", -1, 1, 42, 2, 21.752998))
sketch2.addConstraint(Sketcher.Constraint("DistanceX", -1, 1, 53, 2, 5.606899))
sketch2.addConstraint(Sketcher.Constraint("DistanceY", -1, 1, 58, 2, 21.752998))
sketch2.addConstraint(Sketcher.Constraint("DistanceX", 0, 3, -1, 1, 24.678508))
sketch2.addConstraint(Sketcher.Constraint("DistanceX", 7, 3, -1, 1, 23.602861))
sketch2.addConstraint(Sketcher.Constraint("DistanceY", 8, 3, -1, 1, 11.020079))
sketch2.addConstraint(Sketcher.Constraint("DistanceY", 16, 3, -1, 1, 24.678508))
sketch2.addConstraint(Sketcher.Constraint("DistanceY", 23, 3, -1, 1, 23.602861))
sketch2.addConstraint(Sketcher.Constraint("DistanceX", -1, 1, 24, 3, 11.020079))
sketch2.addConstraint(Sketcher.Constraint("DistanceX", -1, 1, 32, 3, 24.678508))
sketch2.addConstraint(Sketcher.Constraint("DistanceX", -1, 1, 39, 3, 23.602861))
sketch2.addConstraint(Sketcher.Constraint("DistanceY", -1, 1, 40, 3, 11.020079))
sketch2.addConstraint(Sketcher.Constraint("DistanceY", -1, 1, 48, 3, 24.678508))
sketch2.addConstraint(Sketcher.Constraint("DistanceY", -1, 1, 55, 3, 23.602861))
sketch2.addConstraint(Sketcher.Constraint("DistanceX", 56, 3, -1, 1, 11.020079))
sketch2.addConstraint(Sketcher.Constraint("DistanceX", 0, 1, -1, 1, 18.50429))
sketch2.addConstraint(Sketcher.Constraint("DistanceY", -1, 1, 0, 1, 7.664728))
sketch2.addConstraint(Sketcher.Constraint("DistanceX", 3, 2, -1, 1, 29.128942))
sketch2.addConstraint(Sketcher.Constraint("DistanceY", -1, 1, 3, 2, 4.96618))
sketch2.addConstraint(Sketcher.Constraint("DistanceX", 6, 2, -1, 1, 36.826611))
sketch2.addConstraint(Sketcher.Constraint("DistanceY", 7, 2, -1, 1, 8.555321))
sketch2.addConstraint(Sketcher.Constraint("DistanceX", 8, 1, -1, 1, 18.50429))
sketch2.addConstraint(Sketcher.Constraint("DistanceY", 10, 2, -1, 1, 12.011419))
sketch2.addConstraint(Sketcher.Constraint("DistanceX", 12, 1, -1, 1, 26.102342))
sketch2.addConstraint(Sketcher.Constraint("DistanceY", 12, 1, -1, 1, 23.79089))
sketch2.addConstraint(Sketcher.Constraint("DistanceX", 13, 2, -1, 1, 34.01573))
sketch2.addConstraint(Sketcher.Constraint("DistanceX", 14, 2, -1, 1, 24.375368))
sketch2.addConstraint(Sketcher.Constraint("DistanceX", 16, 1, -1, 1, 7.664728))
sketch2.addConstraint(Sketcher.Constraint("DistanceY", 16, 1, -1, 1, 18.50429))
sketch2.addConstraint(Sketcher.Constraint("DistanceX", 19, 2, -1, 1, 4.96618))
sketch2.addConstraint(Sketcher.Constraint("DistanceY", 19, 2, -1, 1, 29.128942))
sketch2.addConstraint(Sketcher.Constraint("DistanceY", 22, 2, -1, 1, 36.826611))
sketch2.addConstraint(Sketcher.Constraint("DistanceX", -1, 1, 23, 2, 8.555321))
sketch2.addConstraint(Sketcher.Constraint("DistanceY", 24, 1, -1, 1, 18.50429))
sketch2.addConstraint(Sketcher.Constraint("DistanceX", -1, 1, 26, 2, 12.011419))
sketch2.addConstraint(Sketcher.Constraint("DistanceX", -1, 1, 28, 1, 23.79089))
sketch2.addConstraint(Sketcher.Constraint("DistanceY", 28, 1, -1, 1, 26.102342))
sketch2.addConstraint(Sketcher.Constraint("DistanceY", 29, 2, -1, 1, 34.01573))
sketch2.addConstraint(Sketcher.Constraint("DistanceY", 30, 2, -1, 1, 24.375368))
sketch2.addConstraint(Sketcher.Constraint("DistanceX", -1, 1, 32, 1, 18.50429))
sketch2.addConstraint(Sketcher.Constraint("DistanceY", 32, 1, -1, 1, 7.664728))
sketch2.addConstraint(Sketcher.Constraint("DistanceX", -1, 1, 35, 2, 29.128942))
sketch2.addConstraint(Sketcher.Constraint("DistanceY", 35, 2, -1, 1, 4.96618))
sketch2.addConstraint(Sketcher.Constraint("DistanceX", -1, 1, 38, 2, 36.826611))
sketch2.addConstraint(Sketcher.Constraint("DistanceY", -1, 1, 39, 2, 8.555321))
sketch2.addConstraint(Sketcher.Constraint("DistanceX", -1, 1, 40, 1, 18.50429))
sketch2.addConstraint(Sketcher.Constraint("DistanceY", -1, 1, 42, 2, 12.011419))
sketch2.addConstraint(Sketcher.Constraint("DistanceX", -1, 1, 44, 1, 26.102342))
sketch2.addConstraint(Sketcher.Constraint("DistanceY", -1, 1, 44, 1, 23.79089))
sketch2.addConstraint(Sketcher.Constraint("DistanceX", -1, 1, 45, 2, 34.01573))
sketch2.addConstraint(Sketcher.Constraint("DistanceX", -1, 1, 46, 2, 24.375368))
sketch2.addConstraint(Sketcher.Constraint("DistanceX", -1, 1, 48, 1, 7.664728))
sketch2.addConstraint(Sketcher.Constraint("DistanceY", -1, 1, 48, 1, 18.50429))
sketch2.addConstraint(Sketcher.Constraint("DistanceX", -1, 1, 51, 2, 4.96618))
sketch2.addConstraint(Sketcher.Constraint("DistanceY", -1, 1, 51, 2, 29.128942))
sketch2.addConstraint(Sketcher.Constraint("DistanceY", -1, 1, 54, 2, 36.826611))
sketch2.addConstraint(Sketcher.Constraint("DistanceX", 55, 2, -1, 1, 8.555321))
sketch2.addConstraint(Sketcher.Constraint("DistanceY", -1, 1, 56, 1, 18.50429))
sketch2.addConstraint(Sketcher.Constraint("DistanceX", 58, 2, -1, 1, 12.011419))
sketch2.addConstraint(Sketcher.Constraint("DistanceX", 60, 1, -1, 1, 23.79089))
sketch2.addConstraint(Sketcher.Constraint("DistanceY", -1, 1, 60, 1, 26.102342))
sketch2.addConstraint(Sketcher.Constraint("DistanceY", -1, 1, 61, 2, 34.01573))
sketch2.addConstraint(Sketcher.Constraint("DistanceY", -1, 1, 62, 2, 24.375368))
sketch2.addConstraint(Sketcher.Constraint("Distance", 2, 4.528324))
sketch2.addConstraint(Sketcher.Constraint("Distance", 5, 8.239597))
sketch2.addConstraint(Sketcher.Constraint("Distance", 6, 9.775355))
sketch2.addConstraint(Sketcher.Constraint("Distance", 10, 4.528324))
sketch2.addConstraint(Sketcher.Constraint("Distance", 13, 8.239598))
sketch2.addConstraint(Sketcher.Constraint("Distance", 14, 9.775355))
sketch2.addConstraint(Sketcher.Constraint("Distance", 18, 4.528324))
sketch2.addConstraint(Sketcher.Constraint("Distance", 21, 8.239597))
sketch2.addConstraint(Sketcher.Constraint("Distance", 22, 9.775355))
sketch2.addConstraint(Sketcher.Constraint("Distance", 26, 4.528324))
sketch2.addConstraint(Sketcher.Constraint("Distance", 29, 8.239598))
sketch2.addConstraint(Sketcher.Constraint("Distance", 30, 9.775355))
sketch2.addConstraint(Sketcher.Constraint("Distance", 34, 4.528324))
sketch2.addConstraint(Sketcher.Constraint("Distance", 37, 8.239597))
sketch2.addConstraint(Sketcher.Constraint("Distance", 38, 9.775355))
sketch2.addConstraint(Sketcher.Constraint("Distance", 42, 4.528324))
sketch2.addConstraint(Sketcher.Constraint("Distance", 45, 8.239598))
sketch2.addConstraint(Sketcher.Constraint("Distance", 46, 9.775355))
sketch2.addConstraint(Sketcher.Constraint("Distance", 50, 4.528324))
sketch2.addConstraint(Sketcher.Constraint("Distance", 53, 8.239597))
sketch2.addConstraint(Sketcher.Constraint("Distance", 54, 9.775355))
sketch2.addConstraint(Sketcher.Constraint("Distance", 58, 4.528324))
sketch2.addConstraint(Sketcher.Constraint("Distance", 61, 8.239598))
sketch2.addConstraint(Sketcher.Constraint("Distance", 62, 9.775355))
sketch2.addConstraint(Sketcher.Constraint("DistanceX", 1, 3, -1, 1, 25.212535))
sketch2.addConstraint(Sketcher.Constraint("DistanceX", 3, 3, -1, 1, 25.719212))
sketch2.addConstraint(Sketcher.Constraint("DistanceX", 4, 3, -1, 1, 33.289293))
sketch2.addConstraint(Sketcher.Constraint("DistanceY", -1, 1, 7, 3, 5.629207))
sketch2.addConstraint(Sketcher.Constraint("DistanceX", 9, 3, -1, 1, 25.237343))
sketch2.addConstraint(Sketcher.Constraint("DistanceX", 11, 3, -1, 1, 20.864505))
sketch2.addConstraint(Sketcher.Constraint("DistanceX", 12, 3, -1, 1, 27.289016))
sketch2.addConstraint(Sketcher.Constraint("DistanceX", 15, 3, -1, 1, 20.670194))
sketch2.addConstraint(Sketcher.Constraint("DistanceX", 17, 3, -1, 1, 10.478437))
sketch2.addConstraint(Sketcher.Constraint("DistanceX", 19, 3, -1, 1, 3.787653))
sketch2.addConstraint(Sketcher.Constraint("DistanceX", 20, 3, -1, 1, 5.303205))
sketch2.addConstraint(Sketcher.Constraint("DistanceX", 23, 3, -1, 1, 5.629207))
sketch2.addConstraint(Sketcher.Constraint("DistanceX", -1, 1, 25, 3, 10.418584))
sketch2.addConstraint(Sketcher.Constraint("DistanceX", -1, 1, 27, 3, 15.507955))
sketch2.addConstraint(Sketcher.Constraint("DistanceX", -1, 1, 28, 3, 19.789152))
sketch2.addConstraint(Sketcher.Constraint("DistanceX", -1, 1, 31, 3, 12.709294))
sketch2.addConstraint(Sketcher.Constraint("DistanceX", -1, 1, 33, 3, 25.212535))
sketch2.addConstraint(Sketcher.Constraint("DistanceX", -1, 1, 35, 3, 25.719212))
sketch2.addConstraint(Sketcher.Constraint("DistanceX", -1, 1, 36, 3, 33.289293))
sketch2.addConstraint(Sketcher.Constraint("DistanceY", 39, 3, -1, 1, 5.629207))
sketch2.addConstraint(Sketcher.Constraint("DistanceX", -1, 1, 41, 3, 25.237343))
sketch2.addConstraint(Sketcher.Constraint("DistanceX", -1, 1, 43, 3, 20.864505))
sketch2.addConstraint(Sketcher.Constraint("DistanceX", -1, 1, 44, 3, 27.289016))
sketch2.addConstraint(Sketcher.Constraint("DistanceX", -1, 1, 47, 3, 20.670194))
sketch2.addConstraint(Sketcher.Constraint("DistanceX", -1, 1, 49, 3, 10.478437))
sketch2.addConstraint(Sketcher.Constraint("DistanceX", -1, 1, 51, 3, 3.787653))
sketch2.addConstraint(Sketcher.Constraint("DistanceX", -1, 1, 52, 3, 5.303205))
sketch2.addConstraint(Sketcher.Constraint("DistanceX", -1, 1, 55, 3, 5.629207))
sketch2.addConstraint(Sketcher.Constraint("DistanceX", 57, 3, -1, 1, 10.418584))
sketch2.addConstraint(Sketcher.Constraint("DistanceX", 59, 3, -1, 1, 15.507955))
sketch2.addConstraint(Sketcher.Constraint("DistanceX", 60, 3, -1, 1, 19.789152))
sketch2.addConstraint(Sketcher.Constraint("DistanceX", 63, 3, -1, 1, 12.709294))
sketch2.addConstraint(Sketcher.Constraint("DistanceX", 1, 1, -1, 1, 19.419766))
sketch2.addConstraint(Sketcher.Constraint("DistanceX", 17, 1, -1, 1, 6.078285))
sketch2.addConstraint(Sketcher.Constraint("DistanceX", -1, 1, 33, 1, 19.419766))
sketch2.addConstraint(Sketcher.Constraint("DistanceX", -1, 1, 49, 1, 6.078285))
pocket1 = body.newObject("PartDesign::Pocket", "Pocket")
pocket1.Profile = sketch2
pocket1.Length = Q("0.125 in")

doc.recompute()
